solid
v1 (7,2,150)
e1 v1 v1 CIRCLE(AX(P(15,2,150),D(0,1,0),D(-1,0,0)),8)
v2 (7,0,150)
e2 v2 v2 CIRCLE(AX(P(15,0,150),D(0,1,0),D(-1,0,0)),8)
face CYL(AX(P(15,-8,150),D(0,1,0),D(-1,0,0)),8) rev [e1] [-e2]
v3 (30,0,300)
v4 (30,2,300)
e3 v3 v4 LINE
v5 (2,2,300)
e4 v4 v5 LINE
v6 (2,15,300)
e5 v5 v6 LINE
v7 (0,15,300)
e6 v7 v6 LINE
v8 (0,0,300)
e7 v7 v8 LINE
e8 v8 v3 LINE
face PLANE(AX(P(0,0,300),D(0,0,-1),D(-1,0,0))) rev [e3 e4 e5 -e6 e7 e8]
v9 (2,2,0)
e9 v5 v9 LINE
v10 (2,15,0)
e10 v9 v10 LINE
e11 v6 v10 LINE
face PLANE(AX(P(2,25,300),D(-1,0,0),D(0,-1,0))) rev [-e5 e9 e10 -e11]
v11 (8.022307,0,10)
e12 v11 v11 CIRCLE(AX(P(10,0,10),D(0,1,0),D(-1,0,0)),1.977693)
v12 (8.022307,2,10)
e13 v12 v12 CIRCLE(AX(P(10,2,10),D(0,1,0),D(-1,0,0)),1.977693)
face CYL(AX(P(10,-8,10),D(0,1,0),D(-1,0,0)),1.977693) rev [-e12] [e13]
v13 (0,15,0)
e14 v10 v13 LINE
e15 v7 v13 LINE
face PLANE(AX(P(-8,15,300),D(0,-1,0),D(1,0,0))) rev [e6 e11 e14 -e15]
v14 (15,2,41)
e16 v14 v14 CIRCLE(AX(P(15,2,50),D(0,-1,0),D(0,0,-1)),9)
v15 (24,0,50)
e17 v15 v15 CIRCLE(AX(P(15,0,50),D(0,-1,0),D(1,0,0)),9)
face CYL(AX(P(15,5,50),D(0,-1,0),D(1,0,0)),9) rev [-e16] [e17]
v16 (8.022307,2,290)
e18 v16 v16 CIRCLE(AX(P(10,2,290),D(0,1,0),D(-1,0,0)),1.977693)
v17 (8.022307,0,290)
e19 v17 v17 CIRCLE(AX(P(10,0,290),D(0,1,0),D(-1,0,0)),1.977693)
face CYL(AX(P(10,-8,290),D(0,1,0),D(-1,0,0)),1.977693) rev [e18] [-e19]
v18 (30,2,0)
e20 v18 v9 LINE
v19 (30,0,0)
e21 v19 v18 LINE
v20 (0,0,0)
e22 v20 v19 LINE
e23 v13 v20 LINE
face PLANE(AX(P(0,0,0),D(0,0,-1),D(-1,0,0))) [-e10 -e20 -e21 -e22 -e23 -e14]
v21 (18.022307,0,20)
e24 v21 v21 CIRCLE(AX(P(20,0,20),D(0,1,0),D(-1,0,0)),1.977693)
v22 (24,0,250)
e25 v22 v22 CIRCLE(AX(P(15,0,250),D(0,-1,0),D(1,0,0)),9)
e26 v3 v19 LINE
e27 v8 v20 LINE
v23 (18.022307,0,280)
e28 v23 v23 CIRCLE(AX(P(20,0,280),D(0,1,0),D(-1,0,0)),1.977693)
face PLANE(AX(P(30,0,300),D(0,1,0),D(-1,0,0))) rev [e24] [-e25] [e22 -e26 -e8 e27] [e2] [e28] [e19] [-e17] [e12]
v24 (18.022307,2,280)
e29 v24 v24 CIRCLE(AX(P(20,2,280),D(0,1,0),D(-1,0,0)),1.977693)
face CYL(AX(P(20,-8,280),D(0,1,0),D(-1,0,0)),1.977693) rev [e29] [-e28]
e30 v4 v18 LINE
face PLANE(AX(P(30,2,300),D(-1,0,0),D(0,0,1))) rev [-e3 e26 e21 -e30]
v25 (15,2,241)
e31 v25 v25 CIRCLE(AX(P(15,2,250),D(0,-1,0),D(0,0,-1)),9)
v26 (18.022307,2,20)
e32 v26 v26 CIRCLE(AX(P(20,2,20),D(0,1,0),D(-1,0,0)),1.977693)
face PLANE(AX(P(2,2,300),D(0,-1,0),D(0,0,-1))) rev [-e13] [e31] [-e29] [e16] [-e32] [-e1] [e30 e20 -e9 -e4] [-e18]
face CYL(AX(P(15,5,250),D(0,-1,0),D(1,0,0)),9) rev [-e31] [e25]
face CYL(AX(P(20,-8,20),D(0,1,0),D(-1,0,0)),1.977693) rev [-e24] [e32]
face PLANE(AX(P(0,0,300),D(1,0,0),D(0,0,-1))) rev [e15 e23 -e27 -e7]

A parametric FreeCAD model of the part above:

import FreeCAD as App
import Part
import Sketcher

V = App.Vector


def add_polygon(sketch, points):
    """Adds a closed chain of lines whose ends are joined by coincident constraints."""
    first, n = sketch.GeometryCount, len(points)
    for a, b in zip(points, points[1:] + points[:1]):
        sketch.addGeometry(Part.LineSegment(App.Vector(*a, 0), App.Vector(*b, 0)), False)
    for i in range(n):
        sketch.addConstraint(Sketcher.Constraint("Coincident", first + i, 2, first + (i + 1) % n, 1))

doc = App.newDocument("Part")
body = doc.addObject("PartDesign::Body", "Body")

# Sketch on XY plane
sketch1 = body.newObject("Sketcher::SketchObject", "Sketch")
sketch1.AttachmentSupport = (doc.getObject("XY_Plane"), [""])
sketch1.MapMode = "FlatFace"
add_polygon(sketch1, [(0, 25), (0, 0), (30, 0), (30, 2), (2, 2), (2, 25)])  # lines 0-5
sketch1.addConstraint([
    Sketcher.Constraint("Vertical", 0),
    Sketcher.Constraint("Horizontal", 1),
    Sketcher.Constraint("Vertical", 2),
    Sketcher.Constraint("Horizontal", 3),
    Sketcher.Constraint("Vertical", 4),
    Sketcher.Constraint("Horizontal", 5),
    Sketcher.Constraint("Coincident", 0, 2, -1, 1),
    Sketcher.Constraint("Equal", 5, 2),
    Sketcher.Constraint("DistanceX", 1, 1, 1, 2, 30.0),
    Sketcher.Constraint("DistanceX", 3, 2, 3, 1, 28.0),
    Sketcher.Constraint("DistanceY", 0, 2, 0, 1, 25.0),
])
pad1 = body.newObject("PartDesign::Pad", "Pad")
pad1.Profile = sketch1
pad1.Length = 300

# Sketch on XZ plane
sketch2 = body.newObject("Sketcher::SketchObject", "Sketch001")
sketch2.AttachmentSupport = (doc.getObject("XZ_Plane"), [""])
sketch2.MapMode = "FlatFace"
sketch2.AttachmentOffset = App.Placement(V(0, 0, -2), App.Rotation())
sketch2.addGeometry([
    Part.Circle(V(15, 150, 0), V(0, 0, 1), 8),  # 0
    Part.Circle(V(10, 10, 0), V(0, 0, 1), 1.977693),  # 1
    Part.Circle(V(20, 20, 0), V(0, 0, 1), 1.977693),  # 2
    Part.Circle(V(10, 290, 0), V(0, 0, 1), 1.977693),  # 3
    Part.Circle(V(20, 280, 0), V(0, 0, 1), 1.977693),  # 4
], False)
sketch2.addConstraint([
    Sketcher.Constraint("Equal", 1, 2),
    Sketcher.Constraint("Equal", 2, 3),
    Sketcher.Constraint("Equal", 3, 4),
    Sketcher.Constraint("Vertical", 1, 3, 3, 3),
    Sketcher.Constraint("Vertical", 2, 3, 4, 3),
    Sketcher.Constraint("Diameter", 0, 16.0),
    Sketcher.Constraint("DistanceX", -1, 1, 0, 3, 15.0),
    Sketcher.Constraint("DistanceY", -1, 1, 0, 3, 150.0),
    Sketcher.Constraint("DistanceX", -1, 1, 1, 3, 10.0),
    Sketcher.Constraint("DistanceY", -1, 1, 1, 3, 10.0),
    Sketcher.Constraint("DistanceX", -1, 1, 2, 3, 20.0),
    Sketcher.Constraint("DistanceY", -1, 1, 2, 3, 20.0),
    Sketcher.Constraint("DistanceY", -1, 1, 3, 3, 290.0),
    Sketcher.Constraint("DistanceY", -1, 1, 4, 3, 280.0),
    Sketcher.Constraint("Diameter", 1, 3.955387),
])
pocket1 = body.newObject("PartDesign::Pocket", "Pocket")
pocket1.Profile = sketch2
pocket1.Length = 10
pocket1.Reversed = True

# Sketch on YZ plane
sketch3 = body.newObject("Sketcher::SketchObject", "Sketch002")
sketch3.AttachmentSupport = (doc.getObject("YZ_Plane"), [""])
sketch3.MapMode = "FlatFace"
sketch3.AttachmentOffset = App.Placement(V(0, 0, 2), App.Rotation())
add_polygon(sketch3, [(25, 300), (15, 300), (15, 0), (25, 0)])  # lines 0-3
sketch3.addConstraint([
    Sketcher.Constraint("Horizontal", 0),
    Sketcher.Constraint("Vertical", 1),
    Sketcher.Constraint("Horizontal", 2),
    Sketcher.Constraint("Vertical", 3),
    Sketcher.Constraint("PointOnObject", 1, 2, -1),
    Sketcher.Constraint("DistanceX", 0, 2, 0, 1, 10.0),
    Sketcher.Constraint("DistanceY", 1, 2, 1, 1, 300.0),
    Sketcher.Constraint("DistanceX", -1, 1, 0, 2, 15.0),
])
pocket2 = body.newObject("PartDesign::Pocket", "Pocket001")
pocket2.Profile = sketch3
pocket2.Length = 10

# Sketch on XZ plane
sketch4 = body.newObject("Sketcher::SketchObject", "Sketch003")
sketch4.AttachmentSupport = (doc.getObject("XZ_Plane"), [""])
sketch4.MapMode = "FlatFace"
sketch4.addGeometry([
    Part.Circle(V(15, 250, 0), V(0, 0, 1), 9),
    Part.Circle(V(15, 50, 0), V(0, 0, 1), 9),
    Part.Circle(V(-238, 50, 0), V(0, 0, 1), 9),
    Part.Circle(V(-238, 250, 0), V(0, 0, 1), 9),
], False)
sketch4.addConstraint([
    Sketcher.Constraint("Equal", 0, 1),
    Sketcher.Constraint("Equal", 1, 2),
    Sketcher.Constraint("Equal", 2, 3),
    Sketcher.Constraint("Horizontal", 1, 3, 2, 3),
    Sketcher.Constraint("Horizontal", 0, 3, 3, 3),
    Sketcher.Constraint("Vertical", 0, 3, 1, 3),
    Sketcher.Constraint("Vertical", 2, 3, 3, 3),
    Sketcher.Constraint("Diameter", 0, 18.0),
    Sketcher.Constraint("DistanceX", -1, 1, 0, 3, 15.0),
    Sketcher.Constraint("DistanceY", -1, 1, 0, 3, 250.0),
    Sketcher.Constraint("DistanceY", -1, 1, 1, 3, 50.0),
    Sketcher.Constraint("DistanceX", 2, 3, -1, 1, 238.0),
])
pocket3 = body.newObject("PartDesign::Pocket", "Pocket002")
pocket3.Profile = sketch4
pocket3.Length = 5

doc.recompute()
